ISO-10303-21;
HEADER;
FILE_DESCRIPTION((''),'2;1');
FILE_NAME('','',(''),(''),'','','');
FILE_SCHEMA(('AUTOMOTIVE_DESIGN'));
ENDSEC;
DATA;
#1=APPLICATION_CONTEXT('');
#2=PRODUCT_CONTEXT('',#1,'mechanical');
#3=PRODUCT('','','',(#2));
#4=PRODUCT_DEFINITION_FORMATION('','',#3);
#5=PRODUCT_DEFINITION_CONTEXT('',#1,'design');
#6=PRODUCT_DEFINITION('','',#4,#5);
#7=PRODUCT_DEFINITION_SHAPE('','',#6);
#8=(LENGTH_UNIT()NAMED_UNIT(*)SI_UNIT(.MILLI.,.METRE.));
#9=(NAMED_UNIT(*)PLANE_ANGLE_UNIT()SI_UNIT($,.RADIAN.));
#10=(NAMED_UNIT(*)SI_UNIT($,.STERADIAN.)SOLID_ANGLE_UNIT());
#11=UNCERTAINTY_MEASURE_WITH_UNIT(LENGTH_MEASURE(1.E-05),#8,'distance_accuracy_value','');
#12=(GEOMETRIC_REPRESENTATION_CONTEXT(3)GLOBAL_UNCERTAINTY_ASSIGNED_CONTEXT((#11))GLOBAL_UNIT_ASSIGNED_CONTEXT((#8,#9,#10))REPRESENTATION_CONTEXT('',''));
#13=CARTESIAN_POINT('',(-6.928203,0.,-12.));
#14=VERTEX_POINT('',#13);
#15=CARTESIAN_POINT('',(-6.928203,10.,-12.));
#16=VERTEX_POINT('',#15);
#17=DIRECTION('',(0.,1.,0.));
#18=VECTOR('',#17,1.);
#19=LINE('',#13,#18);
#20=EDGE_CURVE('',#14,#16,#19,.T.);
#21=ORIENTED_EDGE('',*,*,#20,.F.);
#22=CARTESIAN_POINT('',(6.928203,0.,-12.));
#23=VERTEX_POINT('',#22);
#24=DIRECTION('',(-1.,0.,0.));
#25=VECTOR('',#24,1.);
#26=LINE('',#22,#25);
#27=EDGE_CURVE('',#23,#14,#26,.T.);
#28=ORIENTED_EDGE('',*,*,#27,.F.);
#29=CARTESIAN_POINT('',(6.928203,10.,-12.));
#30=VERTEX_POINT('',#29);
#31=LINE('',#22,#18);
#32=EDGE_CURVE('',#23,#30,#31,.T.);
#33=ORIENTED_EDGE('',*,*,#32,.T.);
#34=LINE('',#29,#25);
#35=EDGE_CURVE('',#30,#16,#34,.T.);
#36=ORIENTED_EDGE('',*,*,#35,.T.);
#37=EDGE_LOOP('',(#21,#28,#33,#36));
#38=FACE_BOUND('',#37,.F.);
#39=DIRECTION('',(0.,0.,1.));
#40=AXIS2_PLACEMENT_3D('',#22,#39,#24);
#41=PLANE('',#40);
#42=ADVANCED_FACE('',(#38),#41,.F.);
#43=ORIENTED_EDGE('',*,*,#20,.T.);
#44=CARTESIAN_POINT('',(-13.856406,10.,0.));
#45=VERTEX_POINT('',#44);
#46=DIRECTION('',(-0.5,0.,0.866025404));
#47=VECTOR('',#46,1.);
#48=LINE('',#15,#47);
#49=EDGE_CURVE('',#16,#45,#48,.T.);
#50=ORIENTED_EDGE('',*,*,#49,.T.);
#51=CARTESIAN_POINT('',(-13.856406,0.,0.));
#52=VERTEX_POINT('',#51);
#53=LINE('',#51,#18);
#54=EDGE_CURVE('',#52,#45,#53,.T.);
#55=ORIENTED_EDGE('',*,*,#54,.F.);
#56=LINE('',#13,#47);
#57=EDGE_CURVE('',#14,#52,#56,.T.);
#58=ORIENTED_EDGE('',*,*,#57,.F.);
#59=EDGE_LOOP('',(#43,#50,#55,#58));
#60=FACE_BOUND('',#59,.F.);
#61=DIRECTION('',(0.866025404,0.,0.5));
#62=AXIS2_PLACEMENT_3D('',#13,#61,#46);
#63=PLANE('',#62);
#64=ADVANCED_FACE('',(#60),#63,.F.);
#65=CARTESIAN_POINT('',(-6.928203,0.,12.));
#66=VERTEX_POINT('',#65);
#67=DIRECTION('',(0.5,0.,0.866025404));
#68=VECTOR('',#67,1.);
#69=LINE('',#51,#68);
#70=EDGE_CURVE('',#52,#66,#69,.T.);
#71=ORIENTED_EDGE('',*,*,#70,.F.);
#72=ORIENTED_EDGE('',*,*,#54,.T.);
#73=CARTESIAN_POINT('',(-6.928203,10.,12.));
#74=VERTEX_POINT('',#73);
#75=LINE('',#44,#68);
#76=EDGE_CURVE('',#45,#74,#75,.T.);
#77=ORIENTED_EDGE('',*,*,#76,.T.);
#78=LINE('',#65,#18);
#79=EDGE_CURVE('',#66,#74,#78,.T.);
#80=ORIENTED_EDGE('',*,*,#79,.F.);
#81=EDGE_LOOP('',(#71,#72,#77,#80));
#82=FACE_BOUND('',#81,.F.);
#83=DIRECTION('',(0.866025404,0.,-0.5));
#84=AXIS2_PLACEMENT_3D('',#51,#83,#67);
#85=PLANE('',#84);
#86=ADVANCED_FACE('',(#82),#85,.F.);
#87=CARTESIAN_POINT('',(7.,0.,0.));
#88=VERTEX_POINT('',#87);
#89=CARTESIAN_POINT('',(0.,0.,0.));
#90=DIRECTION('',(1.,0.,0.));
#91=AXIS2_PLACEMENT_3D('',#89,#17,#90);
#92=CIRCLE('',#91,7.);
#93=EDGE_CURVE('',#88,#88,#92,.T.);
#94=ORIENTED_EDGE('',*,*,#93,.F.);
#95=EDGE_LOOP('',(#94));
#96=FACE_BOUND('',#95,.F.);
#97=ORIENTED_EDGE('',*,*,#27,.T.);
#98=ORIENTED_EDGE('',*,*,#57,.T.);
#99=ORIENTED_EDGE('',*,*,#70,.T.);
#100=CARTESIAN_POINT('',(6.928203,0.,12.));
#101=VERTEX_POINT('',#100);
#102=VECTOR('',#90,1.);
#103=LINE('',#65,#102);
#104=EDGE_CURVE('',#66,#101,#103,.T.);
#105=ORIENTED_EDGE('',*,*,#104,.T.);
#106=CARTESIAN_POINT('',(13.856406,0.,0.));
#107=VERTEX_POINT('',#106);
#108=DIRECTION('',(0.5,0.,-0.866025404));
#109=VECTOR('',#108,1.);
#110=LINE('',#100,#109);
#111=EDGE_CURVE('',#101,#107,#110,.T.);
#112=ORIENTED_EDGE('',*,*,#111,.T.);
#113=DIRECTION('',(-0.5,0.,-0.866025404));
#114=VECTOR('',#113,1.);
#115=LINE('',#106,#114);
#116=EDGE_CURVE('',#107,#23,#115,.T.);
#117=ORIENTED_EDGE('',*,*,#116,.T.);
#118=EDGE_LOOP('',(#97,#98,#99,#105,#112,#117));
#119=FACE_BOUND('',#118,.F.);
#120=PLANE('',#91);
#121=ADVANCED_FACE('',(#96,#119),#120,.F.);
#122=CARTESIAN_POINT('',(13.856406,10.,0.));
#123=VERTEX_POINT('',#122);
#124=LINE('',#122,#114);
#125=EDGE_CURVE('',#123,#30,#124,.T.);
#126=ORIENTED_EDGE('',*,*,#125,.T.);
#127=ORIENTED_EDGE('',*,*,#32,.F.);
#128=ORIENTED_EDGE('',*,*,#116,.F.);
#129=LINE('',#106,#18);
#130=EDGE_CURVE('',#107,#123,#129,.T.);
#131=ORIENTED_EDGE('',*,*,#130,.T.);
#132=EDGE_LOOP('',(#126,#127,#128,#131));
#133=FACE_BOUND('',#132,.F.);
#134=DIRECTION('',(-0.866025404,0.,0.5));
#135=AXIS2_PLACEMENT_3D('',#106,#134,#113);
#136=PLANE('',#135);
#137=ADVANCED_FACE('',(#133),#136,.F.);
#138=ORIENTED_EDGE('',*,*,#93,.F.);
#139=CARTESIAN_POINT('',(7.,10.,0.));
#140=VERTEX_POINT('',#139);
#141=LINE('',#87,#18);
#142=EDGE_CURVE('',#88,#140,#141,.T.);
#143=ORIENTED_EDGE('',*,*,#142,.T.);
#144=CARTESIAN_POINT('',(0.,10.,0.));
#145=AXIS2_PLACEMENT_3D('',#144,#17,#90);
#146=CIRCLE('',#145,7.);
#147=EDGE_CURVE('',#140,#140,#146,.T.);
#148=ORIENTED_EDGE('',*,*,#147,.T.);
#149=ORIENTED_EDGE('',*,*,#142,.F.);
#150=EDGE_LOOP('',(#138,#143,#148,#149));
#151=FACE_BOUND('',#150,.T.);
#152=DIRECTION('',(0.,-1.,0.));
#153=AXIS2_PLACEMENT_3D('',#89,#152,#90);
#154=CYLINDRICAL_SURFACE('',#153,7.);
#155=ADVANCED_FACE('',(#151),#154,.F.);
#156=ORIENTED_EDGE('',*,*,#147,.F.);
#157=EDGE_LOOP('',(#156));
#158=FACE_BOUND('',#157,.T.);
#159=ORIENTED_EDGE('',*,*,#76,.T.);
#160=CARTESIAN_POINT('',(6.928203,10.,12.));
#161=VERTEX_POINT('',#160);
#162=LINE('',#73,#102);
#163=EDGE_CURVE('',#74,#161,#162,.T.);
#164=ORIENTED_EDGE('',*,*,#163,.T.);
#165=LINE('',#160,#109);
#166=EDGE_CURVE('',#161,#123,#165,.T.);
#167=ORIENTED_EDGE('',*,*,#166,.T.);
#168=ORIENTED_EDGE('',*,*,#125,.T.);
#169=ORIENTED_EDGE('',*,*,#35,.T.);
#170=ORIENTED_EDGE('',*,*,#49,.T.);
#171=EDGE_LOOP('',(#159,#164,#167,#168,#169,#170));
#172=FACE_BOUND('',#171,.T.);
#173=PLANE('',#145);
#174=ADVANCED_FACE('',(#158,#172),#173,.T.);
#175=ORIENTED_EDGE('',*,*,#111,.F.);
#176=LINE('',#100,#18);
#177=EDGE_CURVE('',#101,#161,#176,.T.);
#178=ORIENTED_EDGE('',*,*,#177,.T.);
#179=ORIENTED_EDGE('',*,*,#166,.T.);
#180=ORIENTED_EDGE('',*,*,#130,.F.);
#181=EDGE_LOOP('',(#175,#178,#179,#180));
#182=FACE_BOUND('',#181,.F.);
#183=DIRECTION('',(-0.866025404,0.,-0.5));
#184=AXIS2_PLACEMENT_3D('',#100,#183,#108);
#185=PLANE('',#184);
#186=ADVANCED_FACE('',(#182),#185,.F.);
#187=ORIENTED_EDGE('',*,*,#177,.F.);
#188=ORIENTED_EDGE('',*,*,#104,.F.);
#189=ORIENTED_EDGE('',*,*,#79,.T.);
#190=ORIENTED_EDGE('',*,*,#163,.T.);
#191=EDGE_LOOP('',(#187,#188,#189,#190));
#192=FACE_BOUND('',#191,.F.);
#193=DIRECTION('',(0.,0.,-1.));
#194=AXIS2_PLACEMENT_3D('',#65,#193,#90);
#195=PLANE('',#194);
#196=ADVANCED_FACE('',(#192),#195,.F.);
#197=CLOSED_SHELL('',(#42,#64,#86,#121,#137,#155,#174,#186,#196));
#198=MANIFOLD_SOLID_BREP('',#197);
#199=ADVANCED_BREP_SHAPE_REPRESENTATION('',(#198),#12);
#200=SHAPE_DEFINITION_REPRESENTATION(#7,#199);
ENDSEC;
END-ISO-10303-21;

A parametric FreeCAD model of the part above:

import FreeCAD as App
import Part
import Sketcher
Q = App.Units.Quantity


def add_polygon(sketch, points):
    """Adds a closed chain of lines whose ends are joined by coincident constraints."""
    first, n = sketch.GeometryCount, len(points)
    for a, b in zip(points, points[1:] + points[:1]):
        sketch.addGeometry(Part.LineSegment(App.Vector(*a, 0), App.Vector(*b, 0)), False)
    for i in range(n):
        sketch.addConstraint(Sketcher.Constraint("Coincident", first + i, 2, first + (i + 1) % n, 1))

doc = App.newDocument("Part")
params = doc.addObject("Spreadsheet::Sheet", "Params")
for row, (alias, value) in enumerate([
    ("sketch1_diameter", "14 mm"),
    ("pad1_length", "10 mm"),
], start=1):
    params.set(f"A{row}", alias)
    params.set(f"B{row}", "=" + value)
    params.setAlias(f"B{row}", alias)

body = doc.addObject("PartDesign::Body", "Body")

# Sketch on XZ plane
sketch1 = body.newObject("Sketcher::SketchObject", "Sketch")
sketch1.AttachmentSupport = (doc.getObject("XZ_Plane"), [""])
sketch1.MapMode = "FlatFace"
add_polygon(sketch1, [(14, 0), (7, -12), (-7, -12), (-14, 0), (-7, 12), (7, 12)])  # lines 0-5
sketch1.addGeometry(Part.Circle(App.Vector(0, 0, 0), App.Vector(0, 0, 1), 7), False)  # 6
sketch1.addConstraint([
    Sketcher.Constraint("Horizontal", 1),
    Sketcher.Constraint("Horizontal", 4),
    Sketcher.Constraint("Coincident", 6, 3, -1, 1),
    Sketcher.Constraint("Symmetric", 0, 2, 3, 2, -1, 1),
    Sketcher.Constraint("Symmetric", 2, 2, 5, 2, -1, 1),
    Sketcher.Constraint("PointOnObject", 2, 2, -1),
    Sketcher.Constraint("Parallel", 2, 5),
    Sketcher.Constraint("Vertical", 1, 2, 3, 2),
    Sketcher.Constraint("Diameter", 6, Q("14 mm")),
    Sketcher.Constraint("Angle", 0, Q("-120 deg")),
    Sketcher.Constraint("DistanceY", 0, 2, -1, 1, Q("12 mm")),
    Sketcher.Constraint("DistanceX", 1, 2, 1, 1, Q("13.856406 mm")),
])
sketch1.setExpression("Constraints[14]", "Params.sketch1_diameter")
pad1 = body.newObject("PartDesign::Pad", "Pad")
pad1.Profile = sketch1
pad1.setExpression("Length", "Params.pad1_length")
pad1.Reversed = True

doc.recompute()
